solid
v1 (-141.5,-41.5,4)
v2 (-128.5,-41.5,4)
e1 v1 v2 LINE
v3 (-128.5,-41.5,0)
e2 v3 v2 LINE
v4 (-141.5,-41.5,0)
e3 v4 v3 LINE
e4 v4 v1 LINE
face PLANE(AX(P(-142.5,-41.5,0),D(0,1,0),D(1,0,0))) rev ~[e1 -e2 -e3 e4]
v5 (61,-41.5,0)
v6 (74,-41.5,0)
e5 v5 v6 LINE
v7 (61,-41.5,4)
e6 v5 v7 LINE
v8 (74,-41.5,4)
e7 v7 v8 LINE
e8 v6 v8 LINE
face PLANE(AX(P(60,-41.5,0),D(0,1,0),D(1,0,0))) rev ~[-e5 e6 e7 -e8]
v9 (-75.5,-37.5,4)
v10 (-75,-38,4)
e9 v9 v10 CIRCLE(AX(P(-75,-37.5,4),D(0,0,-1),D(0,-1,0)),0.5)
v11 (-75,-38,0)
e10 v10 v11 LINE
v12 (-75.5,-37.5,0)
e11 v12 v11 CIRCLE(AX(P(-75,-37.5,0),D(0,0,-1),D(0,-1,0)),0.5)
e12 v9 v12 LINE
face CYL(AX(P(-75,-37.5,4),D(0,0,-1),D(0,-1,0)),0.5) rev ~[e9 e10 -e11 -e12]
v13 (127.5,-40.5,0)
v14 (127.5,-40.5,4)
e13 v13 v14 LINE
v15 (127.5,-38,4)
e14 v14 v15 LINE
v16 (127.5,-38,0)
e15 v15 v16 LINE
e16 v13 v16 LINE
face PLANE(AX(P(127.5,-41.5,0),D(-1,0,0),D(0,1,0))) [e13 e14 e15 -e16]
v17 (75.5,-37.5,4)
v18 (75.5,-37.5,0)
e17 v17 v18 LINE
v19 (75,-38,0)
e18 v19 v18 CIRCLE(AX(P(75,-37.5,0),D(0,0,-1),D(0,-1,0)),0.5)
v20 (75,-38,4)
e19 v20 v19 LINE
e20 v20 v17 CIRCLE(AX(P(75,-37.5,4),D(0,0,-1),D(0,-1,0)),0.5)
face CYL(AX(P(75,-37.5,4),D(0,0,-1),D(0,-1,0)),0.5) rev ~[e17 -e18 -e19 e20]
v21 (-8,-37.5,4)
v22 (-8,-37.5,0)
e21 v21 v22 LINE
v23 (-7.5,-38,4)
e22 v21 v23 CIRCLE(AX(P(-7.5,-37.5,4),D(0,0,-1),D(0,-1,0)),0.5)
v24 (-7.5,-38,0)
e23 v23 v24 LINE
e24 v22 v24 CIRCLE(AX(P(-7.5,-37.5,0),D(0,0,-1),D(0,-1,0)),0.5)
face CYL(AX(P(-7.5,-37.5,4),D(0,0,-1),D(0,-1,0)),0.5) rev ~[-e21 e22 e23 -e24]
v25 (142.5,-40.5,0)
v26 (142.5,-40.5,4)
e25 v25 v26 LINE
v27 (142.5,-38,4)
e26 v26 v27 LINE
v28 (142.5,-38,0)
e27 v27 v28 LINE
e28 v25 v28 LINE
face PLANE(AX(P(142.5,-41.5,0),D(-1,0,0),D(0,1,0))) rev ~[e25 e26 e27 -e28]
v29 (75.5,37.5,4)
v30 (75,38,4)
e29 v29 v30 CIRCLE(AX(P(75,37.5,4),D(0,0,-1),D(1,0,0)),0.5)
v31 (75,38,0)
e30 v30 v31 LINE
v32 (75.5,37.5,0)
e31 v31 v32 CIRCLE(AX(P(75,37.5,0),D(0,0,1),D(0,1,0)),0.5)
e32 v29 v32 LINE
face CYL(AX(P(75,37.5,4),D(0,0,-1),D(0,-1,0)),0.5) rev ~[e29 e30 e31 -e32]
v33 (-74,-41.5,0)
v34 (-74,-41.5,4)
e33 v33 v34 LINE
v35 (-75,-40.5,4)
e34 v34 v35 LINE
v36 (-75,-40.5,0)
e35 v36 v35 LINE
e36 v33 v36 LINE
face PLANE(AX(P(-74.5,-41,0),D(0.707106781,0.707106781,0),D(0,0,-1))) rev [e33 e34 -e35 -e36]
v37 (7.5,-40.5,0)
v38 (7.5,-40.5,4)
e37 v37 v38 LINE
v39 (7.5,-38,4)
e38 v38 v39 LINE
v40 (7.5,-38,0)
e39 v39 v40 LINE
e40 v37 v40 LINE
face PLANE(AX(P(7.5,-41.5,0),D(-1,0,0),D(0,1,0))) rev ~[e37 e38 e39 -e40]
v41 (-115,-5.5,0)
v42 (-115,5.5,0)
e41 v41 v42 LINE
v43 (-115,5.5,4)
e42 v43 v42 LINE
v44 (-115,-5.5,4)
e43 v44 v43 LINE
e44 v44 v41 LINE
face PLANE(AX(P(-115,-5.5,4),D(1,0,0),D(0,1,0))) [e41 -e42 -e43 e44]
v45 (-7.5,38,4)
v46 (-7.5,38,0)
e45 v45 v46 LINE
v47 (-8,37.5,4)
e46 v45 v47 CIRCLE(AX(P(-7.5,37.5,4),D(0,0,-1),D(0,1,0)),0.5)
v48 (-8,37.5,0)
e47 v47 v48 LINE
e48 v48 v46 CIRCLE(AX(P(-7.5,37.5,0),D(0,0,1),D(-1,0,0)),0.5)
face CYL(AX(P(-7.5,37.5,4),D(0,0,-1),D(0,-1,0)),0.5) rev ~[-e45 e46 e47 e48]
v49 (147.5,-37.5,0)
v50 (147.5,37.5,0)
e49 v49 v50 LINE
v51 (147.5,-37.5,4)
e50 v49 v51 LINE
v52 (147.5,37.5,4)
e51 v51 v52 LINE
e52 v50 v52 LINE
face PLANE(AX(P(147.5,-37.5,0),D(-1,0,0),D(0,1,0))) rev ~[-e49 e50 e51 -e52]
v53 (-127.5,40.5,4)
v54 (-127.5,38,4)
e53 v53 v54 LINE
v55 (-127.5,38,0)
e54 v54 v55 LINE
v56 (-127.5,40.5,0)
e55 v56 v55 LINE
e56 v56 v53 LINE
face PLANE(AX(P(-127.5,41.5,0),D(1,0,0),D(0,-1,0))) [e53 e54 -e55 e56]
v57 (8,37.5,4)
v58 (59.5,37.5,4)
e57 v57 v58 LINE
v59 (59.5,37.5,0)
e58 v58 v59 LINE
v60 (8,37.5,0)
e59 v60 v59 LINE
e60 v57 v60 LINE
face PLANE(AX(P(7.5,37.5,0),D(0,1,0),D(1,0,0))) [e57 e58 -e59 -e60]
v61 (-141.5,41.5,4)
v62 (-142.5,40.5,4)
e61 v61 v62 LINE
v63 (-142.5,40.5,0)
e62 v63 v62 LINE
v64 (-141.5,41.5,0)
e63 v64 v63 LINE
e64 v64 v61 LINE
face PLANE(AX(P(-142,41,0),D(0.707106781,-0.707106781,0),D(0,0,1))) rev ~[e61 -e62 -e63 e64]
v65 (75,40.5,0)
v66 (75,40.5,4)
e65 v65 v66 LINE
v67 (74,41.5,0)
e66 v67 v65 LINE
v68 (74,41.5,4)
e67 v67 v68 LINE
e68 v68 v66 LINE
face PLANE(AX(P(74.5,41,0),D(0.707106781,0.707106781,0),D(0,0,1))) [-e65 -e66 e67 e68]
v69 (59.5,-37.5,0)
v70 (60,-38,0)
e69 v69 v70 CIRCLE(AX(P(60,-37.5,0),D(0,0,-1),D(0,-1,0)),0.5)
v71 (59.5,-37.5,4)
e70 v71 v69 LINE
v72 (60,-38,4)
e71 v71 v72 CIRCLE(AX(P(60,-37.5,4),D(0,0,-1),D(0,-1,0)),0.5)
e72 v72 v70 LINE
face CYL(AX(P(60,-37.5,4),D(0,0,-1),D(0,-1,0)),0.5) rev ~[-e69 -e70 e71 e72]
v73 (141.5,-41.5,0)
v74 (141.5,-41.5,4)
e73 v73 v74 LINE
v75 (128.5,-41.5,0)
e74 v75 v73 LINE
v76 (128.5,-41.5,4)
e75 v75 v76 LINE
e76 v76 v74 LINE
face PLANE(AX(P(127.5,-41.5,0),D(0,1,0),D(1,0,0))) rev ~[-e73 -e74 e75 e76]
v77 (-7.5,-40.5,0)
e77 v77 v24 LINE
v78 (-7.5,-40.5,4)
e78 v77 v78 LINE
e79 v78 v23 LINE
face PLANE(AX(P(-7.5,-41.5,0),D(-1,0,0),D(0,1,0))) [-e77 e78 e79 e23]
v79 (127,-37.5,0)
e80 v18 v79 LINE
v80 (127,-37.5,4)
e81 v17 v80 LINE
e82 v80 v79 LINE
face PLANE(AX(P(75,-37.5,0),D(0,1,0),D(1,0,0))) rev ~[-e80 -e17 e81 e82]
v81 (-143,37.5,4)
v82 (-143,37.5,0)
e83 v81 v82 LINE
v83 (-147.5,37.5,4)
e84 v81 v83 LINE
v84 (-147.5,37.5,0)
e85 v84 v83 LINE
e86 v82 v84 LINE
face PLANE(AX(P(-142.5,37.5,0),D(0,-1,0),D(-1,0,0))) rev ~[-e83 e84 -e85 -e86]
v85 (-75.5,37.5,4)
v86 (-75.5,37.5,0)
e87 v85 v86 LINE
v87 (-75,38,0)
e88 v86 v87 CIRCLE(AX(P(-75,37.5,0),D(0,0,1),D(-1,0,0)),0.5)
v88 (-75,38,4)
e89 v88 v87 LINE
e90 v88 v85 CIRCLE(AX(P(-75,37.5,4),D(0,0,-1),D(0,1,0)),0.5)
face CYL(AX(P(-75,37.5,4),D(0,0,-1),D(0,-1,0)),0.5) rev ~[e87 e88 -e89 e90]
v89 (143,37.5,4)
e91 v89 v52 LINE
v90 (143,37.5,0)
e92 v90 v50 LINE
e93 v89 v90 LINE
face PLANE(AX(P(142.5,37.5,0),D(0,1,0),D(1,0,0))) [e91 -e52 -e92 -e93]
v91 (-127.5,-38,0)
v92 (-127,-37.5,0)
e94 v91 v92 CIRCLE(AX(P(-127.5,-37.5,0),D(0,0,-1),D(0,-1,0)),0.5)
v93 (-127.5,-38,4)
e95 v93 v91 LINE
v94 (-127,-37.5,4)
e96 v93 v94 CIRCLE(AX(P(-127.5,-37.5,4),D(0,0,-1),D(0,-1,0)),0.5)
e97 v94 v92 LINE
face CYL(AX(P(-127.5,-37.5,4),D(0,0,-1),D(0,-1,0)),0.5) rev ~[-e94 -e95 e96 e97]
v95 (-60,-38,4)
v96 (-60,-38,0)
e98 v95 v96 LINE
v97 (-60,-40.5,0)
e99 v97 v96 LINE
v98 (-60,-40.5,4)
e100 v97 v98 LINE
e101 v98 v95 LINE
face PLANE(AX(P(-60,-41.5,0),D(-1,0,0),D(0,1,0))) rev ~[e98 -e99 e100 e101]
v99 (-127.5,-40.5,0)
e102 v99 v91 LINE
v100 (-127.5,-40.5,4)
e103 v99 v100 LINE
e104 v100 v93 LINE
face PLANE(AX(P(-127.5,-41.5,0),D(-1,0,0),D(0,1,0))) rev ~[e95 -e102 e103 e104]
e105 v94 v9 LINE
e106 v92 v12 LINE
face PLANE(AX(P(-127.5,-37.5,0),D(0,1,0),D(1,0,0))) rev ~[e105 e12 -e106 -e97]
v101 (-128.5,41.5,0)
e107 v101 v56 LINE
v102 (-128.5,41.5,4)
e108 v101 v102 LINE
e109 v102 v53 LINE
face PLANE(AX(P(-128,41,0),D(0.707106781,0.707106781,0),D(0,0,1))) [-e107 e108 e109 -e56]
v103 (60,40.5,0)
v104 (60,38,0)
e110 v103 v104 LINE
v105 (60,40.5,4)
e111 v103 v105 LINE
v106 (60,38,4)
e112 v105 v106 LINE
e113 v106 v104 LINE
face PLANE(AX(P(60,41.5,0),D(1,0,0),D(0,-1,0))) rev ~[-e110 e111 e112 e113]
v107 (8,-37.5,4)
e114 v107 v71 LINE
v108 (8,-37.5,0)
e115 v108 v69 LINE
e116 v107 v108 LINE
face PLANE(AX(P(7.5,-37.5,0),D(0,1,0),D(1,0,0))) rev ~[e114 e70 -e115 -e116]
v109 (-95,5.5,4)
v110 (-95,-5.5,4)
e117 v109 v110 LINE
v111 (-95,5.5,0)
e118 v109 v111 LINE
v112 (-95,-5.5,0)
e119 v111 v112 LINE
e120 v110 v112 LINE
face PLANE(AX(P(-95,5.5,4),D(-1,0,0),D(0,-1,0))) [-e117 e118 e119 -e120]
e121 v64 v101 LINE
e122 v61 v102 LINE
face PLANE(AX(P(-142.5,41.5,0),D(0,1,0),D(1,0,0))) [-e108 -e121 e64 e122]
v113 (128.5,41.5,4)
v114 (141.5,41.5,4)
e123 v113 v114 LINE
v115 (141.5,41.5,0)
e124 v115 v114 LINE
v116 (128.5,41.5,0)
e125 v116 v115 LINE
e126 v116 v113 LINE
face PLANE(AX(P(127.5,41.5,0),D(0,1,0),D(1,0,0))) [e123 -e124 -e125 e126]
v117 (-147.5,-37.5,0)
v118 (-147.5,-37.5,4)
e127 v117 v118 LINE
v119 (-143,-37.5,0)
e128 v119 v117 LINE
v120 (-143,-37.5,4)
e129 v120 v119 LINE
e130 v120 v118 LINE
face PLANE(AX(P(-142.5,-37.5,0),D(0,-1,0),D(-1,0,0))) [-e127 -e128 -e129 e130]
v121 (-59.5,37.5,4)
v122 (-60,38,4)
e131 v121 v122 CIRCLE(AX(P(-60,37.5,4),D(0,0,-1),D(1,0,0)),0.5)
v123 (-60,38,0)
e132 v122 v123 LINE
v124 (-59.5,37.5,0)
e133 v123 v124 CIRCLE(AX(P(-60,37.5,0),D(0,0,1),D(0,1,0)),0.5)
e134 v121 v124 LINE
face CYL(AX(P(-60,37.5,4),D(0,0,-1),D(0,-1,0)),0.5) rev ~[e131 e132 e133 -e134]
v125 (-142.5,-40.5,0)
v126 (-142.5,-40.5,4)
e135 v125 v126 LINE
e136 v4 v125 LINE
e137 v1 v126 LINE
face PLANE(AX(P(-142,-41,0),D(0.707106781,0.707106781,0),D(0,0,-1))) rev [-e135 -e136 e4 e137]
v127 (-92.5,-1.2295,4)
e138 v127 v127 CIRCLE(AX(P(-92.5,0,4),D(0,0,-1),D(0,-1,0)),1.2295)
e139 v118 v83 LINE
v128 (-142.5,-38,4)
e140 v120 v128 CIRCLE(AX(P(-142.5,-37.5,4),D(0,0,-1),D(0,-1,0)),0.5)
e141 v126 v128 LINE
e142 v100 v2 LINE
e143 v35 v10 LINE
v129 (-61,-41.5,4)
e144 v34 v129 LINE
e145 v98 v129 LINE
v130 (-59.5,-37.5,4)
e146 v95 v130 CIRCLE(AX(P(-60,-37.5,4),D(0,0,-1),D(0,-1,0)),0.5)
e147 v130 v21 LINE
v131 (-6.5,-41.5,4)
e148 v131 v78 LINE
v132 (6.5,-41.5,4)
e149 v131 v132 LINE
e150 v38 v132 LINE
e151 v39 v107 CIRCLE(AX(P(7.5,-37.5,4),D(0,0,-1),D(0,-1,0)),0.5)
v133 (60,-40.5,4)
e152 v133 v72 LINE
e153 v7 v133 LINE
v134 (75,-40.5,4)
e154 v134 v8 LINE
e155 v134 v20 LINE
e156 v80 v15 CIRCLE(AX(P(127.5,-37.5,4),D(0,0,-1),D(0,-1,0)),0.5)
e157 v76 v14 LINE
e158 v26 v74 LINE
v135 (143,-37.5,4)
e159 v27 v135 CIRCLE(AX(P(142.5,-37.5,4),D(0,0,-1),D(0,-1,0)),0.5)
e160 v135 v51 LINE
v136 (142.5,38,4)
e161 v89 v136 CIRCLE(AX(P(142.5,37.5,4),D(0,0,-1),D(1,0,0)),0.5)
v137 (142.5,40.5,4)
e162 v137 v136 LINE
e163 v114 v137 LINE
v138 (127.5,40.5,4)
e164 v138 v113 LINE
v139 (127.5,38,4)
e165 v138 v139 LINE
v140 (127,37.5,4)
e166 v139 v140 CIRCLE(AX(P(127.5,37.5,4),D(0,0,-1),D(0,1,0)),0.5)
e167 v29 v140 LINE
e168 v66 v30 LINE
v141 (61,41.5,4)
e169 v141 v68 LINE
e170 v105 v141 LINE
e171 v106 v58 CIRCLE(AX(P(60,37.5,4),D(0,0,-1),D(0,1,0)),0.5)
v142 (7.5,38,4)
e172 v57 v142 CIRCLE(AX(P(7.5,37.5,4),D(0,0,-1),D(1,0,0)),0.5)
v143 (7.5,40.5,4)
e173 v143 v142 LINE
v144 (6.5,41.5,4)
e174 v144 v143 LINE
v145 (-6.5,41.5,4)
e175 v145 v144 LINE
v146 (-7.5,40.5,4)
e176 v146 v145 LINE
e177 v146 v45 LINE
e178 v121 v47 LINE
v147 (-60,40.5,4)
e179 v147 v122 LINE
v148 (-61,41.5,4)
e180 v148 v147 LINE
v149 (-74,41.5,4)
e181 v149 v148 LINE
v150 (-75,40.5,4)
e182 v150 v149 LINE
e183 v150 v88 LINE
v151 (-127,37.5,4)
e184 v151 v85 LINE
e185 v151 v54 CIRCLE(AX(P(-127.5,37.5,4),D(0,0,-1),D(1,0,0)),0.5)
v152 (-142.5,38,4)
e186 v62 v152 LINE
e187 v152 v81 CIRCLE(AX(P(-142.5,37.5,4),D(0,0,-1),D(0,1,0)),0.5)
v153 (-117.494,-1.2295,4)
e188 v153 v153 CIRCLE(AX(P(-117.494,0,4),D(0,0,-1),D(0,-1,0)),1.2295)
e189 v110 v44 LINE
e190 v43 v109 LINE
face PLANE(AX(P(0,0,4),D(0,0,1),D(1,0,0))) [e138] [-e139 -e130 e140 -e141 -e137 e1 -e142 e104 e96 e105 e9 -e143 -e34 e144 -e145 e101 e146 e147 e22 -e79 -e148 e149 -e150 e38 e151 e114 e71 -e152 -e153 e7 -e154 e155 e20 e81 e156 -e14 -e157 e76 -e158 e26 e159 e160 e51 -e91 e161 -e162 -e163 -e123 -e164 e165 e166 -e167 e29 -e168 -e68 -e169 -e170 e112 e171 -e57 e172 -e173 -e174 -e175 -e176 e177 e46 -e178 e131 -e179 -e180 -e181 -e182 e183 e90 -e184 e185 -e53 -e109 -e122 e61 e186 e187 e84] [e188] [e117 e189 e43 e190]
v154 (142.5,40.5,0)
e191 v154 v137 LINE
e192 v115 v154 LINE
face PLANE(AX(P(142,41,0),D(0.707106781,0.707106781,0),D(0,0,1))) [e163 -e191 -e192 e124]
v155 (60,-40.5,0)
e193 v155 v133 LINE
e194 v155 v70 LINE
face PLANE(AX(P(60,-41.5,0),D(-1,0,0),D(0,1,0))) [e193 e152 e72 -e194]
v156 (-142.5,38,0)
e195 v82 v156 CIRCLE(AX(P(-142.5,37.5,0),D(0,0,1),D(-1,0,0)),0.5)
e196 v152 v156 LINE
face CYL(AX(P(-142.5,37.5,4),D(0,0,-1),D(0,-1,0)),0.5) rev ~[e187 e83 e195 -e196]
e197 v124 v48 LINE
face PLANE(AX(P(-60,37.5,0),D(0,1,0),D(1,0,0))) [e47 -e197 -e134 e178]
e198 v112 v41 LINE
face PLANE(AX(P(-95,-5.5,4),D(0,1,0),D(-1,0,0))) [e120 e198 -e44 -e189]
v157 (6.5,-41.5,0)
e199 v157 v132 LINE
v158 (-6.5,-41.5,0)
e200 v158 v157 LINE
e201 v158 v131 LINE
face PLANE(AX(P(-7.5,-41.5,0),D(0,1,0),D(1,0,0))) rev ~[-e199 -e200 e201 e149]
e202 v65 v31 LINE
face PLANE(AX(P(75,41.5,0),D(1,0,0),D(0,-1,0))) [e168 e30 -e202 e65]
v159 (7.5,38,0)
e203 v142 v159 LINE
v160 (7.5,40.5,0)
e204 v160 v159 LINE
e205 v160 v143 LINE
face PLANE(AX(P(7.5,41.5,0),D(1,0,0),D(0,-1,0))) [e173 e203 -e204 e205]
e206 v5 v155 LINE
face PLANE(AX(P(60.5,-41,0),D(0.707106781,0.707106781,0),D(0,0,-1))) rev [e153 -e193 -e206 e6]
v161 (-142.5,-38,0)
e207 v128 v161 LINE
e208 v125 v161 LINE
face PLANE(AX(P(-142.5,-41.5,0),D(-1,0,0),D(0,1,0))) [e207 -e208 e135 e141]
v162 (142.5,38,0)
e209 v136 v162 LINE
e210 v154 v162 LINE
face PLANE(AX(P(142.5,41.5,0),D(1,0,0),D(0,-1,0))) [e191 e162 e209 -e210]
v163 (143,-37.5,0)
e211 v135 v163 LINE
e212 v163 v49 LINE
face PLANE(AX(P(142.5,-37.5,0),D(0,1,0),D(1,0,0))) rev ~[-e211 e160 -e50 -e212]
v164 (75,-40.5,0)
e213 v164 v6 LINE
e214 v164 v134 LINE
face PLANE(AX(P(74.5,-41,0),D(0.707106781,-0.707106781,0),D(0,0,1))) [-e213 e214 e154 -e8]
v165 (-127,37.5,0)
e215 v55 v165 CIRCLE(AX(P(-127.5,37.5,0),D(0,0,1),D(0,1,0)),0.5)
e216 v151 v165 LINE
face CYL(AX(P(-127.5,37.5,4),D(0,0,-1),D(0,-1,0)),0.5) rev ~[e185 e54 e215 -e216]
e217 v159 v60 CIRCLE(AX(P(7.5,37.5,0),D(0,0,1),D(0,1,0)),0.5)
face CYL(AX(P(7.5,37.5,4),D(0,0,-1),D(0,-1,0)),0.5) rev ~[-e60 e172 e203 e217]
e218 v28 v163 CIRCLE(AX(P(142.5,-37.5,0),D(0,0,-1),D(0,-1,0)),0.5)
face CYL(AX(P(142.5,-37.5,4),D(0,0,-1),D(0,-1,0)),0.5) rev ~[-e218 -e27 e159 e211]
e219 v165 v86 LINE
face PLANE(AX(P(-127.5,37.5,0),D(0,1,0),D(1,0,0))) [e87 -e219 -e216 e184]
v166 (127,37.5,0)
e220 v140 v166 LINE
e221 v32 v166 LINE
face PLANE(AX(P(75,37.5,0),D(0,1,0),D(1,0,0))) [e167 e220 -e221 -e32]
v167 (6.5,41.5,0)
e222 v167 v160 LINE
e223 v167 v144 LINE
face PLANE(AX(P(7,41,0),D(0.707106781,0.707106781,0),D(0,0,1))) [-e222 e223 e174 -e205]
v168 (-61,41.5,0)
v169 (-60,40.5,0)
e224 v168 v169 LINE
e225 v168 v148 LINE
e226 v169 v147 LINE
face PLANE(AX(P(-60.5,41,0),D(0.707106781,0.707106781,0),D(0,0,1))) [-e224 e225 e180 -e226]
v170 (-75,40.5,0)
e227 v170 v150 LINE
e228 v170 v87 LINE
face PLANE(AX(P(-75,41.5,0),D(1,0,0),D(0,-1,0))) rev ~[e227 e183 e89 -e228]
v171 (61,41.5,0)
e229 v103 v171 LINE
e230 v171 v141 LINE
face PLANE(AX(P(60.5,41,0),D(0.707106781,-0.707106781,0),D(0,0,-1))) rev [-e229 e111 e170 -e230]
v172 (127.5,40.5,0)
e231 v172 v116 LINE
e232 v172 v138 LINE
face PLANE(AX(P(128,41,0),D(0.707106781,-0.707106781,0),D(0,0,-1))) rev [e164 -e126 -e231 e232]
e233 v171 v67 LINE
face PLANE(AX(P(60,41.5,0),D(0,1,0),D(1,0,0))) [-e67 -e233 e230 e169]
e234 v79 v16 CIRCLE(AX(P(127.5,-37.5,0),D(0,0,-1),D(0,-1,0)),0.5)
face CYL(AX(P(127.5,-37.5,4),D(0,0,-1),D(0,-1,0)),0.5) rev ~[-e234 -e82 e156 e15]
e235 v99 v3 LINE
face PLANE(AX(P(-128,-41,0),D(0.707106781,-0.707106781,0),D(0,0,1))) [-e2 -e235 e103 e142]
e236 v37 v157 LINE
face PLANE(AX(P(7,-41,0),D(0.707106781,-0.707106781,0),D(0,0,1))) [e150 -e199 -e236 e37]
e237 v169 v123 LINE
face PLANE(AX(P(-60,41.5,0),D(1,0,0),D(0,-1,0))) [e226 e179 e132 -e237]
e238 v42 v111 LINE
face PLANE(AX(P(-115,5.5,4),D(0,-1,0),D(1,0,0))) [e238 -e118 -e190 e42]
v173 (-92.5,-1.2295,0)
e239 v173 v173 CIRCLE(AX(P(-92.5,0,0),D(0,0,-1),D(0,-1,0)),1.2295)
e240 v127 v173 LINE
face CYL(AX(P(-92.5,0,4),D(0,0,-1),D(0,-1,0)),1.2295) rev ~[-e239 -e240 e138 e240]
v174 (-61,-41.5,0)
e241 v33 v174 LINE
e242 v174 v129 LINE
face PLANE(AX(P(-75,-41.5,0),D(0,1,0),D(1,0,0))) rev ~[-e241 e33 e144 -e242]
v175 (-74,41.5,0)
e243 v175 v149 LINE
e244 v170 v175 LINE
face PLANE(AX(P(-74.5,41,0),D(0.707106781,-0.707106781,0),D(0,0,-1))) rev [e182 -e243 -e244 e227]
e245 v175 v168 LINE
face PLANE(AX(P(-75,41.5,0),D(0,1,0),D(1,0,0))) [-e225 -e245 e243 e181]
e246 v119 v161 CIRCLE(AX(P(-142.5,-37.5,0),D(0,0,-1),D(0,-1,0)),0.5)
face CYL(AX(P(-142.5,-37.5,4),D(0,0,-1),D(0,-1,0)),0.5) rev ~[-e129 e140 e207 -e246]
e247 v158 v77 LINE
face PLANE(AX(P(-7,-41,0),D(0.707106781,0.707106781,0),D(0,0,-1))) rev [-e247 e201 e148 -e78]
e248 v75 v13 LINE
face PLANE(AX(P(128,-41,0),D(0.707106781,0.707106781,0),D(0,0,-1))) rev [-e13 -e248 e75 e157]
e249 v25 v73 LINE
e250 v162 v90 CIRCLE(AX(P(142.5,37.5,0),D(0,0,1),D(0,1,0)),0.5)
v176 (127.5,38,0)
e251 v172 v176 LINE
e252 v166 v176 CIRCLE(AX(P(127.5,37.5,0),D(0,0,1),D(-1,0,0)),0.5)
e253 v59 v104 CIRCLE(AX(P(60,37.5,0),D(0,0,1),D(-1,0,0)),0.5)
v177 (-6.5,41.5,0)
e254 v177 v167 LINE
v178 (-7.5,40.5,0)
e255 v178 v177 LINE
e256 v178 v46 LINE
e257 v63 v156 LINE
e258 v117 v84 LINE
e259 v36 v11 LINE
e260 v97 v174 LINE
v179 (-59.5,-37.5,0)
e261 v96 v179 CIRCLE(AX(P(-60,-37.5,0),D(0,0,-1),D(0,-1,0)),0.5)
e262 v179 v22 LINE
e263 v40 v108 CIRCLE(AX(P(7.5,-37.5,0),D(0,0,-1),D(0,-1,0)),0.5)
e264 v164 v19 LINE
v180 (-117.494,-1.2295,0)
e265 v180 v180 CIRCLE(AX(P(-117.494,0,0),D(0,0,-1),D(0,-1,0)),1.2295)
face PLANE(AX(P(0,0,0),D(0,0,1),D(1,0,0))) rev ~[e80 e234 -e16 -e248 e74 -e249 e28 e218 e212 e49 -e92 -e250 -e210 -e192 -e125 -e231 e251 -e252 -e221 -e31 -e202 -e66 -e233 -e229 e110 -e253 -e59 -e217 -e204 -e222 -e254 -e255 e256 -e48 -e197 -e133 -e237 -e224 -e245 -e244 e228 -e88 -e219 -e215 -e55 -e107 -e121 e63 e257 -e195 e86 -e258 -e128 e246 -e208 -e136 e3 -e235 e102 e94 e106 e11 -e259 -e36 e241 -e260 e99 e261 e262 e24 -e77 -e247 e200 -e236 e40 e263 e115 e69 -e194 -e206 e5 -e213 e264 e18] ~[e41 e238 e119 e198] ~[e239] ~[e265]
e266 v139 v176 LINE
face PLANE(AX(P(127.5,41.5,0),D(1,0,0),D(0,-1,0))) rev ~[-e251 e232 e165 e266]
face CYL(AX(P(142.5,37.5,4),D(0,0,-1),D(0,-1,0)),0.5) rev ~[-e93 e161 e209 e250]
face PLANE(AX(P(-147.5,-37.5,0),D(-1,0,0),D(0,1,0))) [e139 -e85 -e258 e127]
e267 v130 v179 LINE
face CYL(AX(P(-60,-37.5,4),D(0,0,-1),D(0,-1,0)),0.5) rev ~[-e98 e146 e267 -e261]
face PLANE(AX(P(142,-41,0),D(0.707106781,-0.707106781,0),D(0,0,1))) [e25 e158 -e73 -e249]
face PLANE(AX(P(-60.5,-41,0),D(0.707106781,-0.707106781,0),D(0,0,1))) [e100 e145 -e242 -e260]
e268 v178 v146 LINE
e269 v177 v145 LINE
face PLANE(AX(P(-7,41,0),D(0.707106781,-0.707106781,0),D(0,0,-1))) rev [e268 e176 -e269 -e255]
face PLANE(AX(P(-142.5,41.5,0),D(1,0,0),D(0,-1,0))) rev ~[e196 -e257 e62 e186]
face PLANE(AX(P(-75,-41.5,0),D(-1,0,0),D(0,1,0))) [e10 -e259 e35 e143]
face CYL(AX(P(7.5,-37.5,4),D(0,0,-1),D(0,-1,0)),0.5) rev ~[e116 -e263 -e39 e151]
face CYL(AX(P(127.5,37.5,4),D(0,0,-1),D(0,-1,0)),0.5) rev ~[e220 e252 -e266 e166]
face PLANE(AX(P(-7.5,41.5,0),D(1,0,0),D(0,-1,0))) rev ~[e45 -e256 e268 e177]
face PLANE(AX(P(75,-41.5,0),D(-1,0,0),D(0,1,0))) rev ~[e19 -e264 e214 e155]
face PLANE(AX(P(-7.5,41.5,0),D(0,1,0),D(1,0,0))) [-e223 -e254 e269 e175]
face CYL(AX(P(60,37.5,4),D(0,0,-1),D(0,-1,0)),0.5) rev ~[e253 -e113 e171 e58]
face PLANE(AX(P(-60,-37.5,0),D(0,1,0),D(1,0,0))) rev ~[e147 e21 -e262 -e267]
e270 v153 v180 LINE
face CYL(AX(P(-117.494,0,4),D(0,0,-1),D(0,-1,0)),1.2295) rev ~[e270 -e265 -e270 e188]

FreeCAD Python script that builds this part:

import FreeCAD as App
import Part
import Sketcher

V = App.Vector
Q = App.Units.Quantity


def edges_at(feature, points):
    """Names of the edges that pass closest to the given points."""
    edges = feature.Shape.Edges
    near = lambda p: min(range(len(edges)), key=lambda i: edges[i].distToShape(Part.Vertex(*p))[0])
    return sorted({f"Edge{near(p) + 1}" for p in points})

doc = App.newDocument("Part")
params = doc.addObject("Spreadsheet::Sheet", "Params")
for row, (alias, value) in enumerate([
    ("sketch1_width", "15 mm"),
    ("sketch1_width2", "5 mm"),
    ("sketch1_height", "4 mm"),
    ("sketch1_height2", "75 mm"),
    ("pad1_length", "4 mm"),
    ("sketch2_diameter", "1 mm"),
    ("hole_diameter", "1 mm"),
    ("chamfer_size", "1 mm"),
    ("sketch3_width", "20 mm"),
    ("sketch3_height", "11 mm"),
    ("pocket1_length", "10 mm"),
    ("hole2_diameter", "2.459 mm"),
], start=1):
    params.set(f"A{row}", alias)
    params.set(f"B{row}", "=" + value)
    params.setAlias(f"B{row}", alias)

body = doc.addObject("PartDesign::Body", "Body")

# Sketch on XY plane
sketch1 = body.newObject("Sketcher::SketchObject", "Sketch")
sketch1.AttachmentSupport = (doc.getObject("XY_Plane"), [""])
sketch1.MapMode = "FlatFace"
sketch1.addGeometry(Part.LineSegment(V(-127.5, 41.5, 0), V(-142.5, 41.5, 0)), False)
sketch1.addGeometry(Part.LineSegment(V(-142.5, 41.5, 0), V(-142.5, 37.5, 0)), False)
sketch1.addGeometry(Part.LineSegment(V(-142.5, 37.5, 0), V(-147.5, 37.5, 0)), False)
sketch1.addGeometry(Part.LineSegment(V(-147.5, 37.5, 0), V(-147.5, -37.5, 0)), False)
sketch1.addGeometry(Part.LineSegment(V(-147.5, -37.5, 0), V(-142.5, -37.5, 0)), False)
sketch1.addGeometry(Part.LineSegment(V(-142.5, -37.5, 0), V(-142.5, -41.5, 0)), False)
sketch1.addGeometry(Part.LineSegment(V(-142.5, -41.5, 0), V(-127.5, -41.5, 0)), False)
sketch1.addGeometry(Part.LineSegment(V(-127.5, -41.5, 0), V(-127.5, -37.5, 0)), False)
sketch1.addGeometry(Part.LineSegment(V(-127.5, -37.5, 0), V(-75, -37.5, 0)), False)
sketch1.addGeometry(Part.LineSegment(V(-75, -37.5, 0), V(-75, -41.5, 0)), False)
sketch1.addGeometry(Part.LineSegment(V(-75, -41.5, 0), V(-60, -41.5, 0)), False)
sketch1.addGeometry(Part.LineSegment(V(-60, -41.5, 0), V(-60, -37.5, 0)), False)
sketch1.addGeometry(Part.LineSegment(V(-60, -37.5, 0), V(-7.5, -37.5, 0)), False)
sketch1.addGeometry(Part.LineSegment(V(-7.5, -37.5, 0), V(-7.5, -41.5, 0)), False)
sketch1.addGeometry(Part.LineSegment(V(-7.5, -41.5, 0), V(7.5, -41.5, 0)), False)
sketch1.addGeometry(Part.LineSegment(V(7.5, -41.5, 0), V(7.5, -37.5, 0)), False)
sketch1.addGeometry(Part.LineSegment(V(7.5, -37.5, 0), V(60, -37.5, 0)), False)
sketch1.addGeometry(Part.LineSegment(V(60, -37.5, 0), V(60, -41.5, 0)), False)
sketch1.addGeometry(Part.LineSegment(V(60, -41.5, 0), V(75, -41.5, 0)), False)
sketch1.addGeometry(Part.LineSegment(V(75, -41.5, 0), V(75, -37.5, 0)), False)
sketch1.addGeometry(Part.LineSegment(V(75, -37.5, 0), V(127.5, -37.5, 0)), False)
sketch1.addGeometry(Part.LineSegment(V(127.5, -37.5, 0), V(127.5, -41.5, 0)), False)
sketch1.addGeometry(Part.LineSegment(V(127.5, -41.5, 0), V(142.5, -41.5, 0)), False)
sketch1.addGeometry(Part.LineSegment(V(142.5, -41.5, 0), V(142.5, -37.5, 0)), False)
sketch1.addGeometry(Part.LineSegment(V(142.5, -37.5, 0), V(147.5, -37.5, 0)), False)
sketch1.addGeometry(Part.LineSegment(V(147.5, -37.5, 0), V(147.5, 37.5, 0)), False)
sketch1.addGeometry(Part.LineSegment(V(147.5, 37.5, 0), V(142.5, 37.5, 0)), False)
sketch1.addGeometry(Part.LineSegment(V(142.5, 37.5, 0), V(142.5, 41.5, 0)), False)
sketch1.addGeometry(Part.LineSegment(V(142.5, 41.5, 0), V(127.5, 41.5, 0)), False)
sketch1.addGeometry(Part.LineSegment(V(127.5, 41.5, 0), V(127.5, 37.5, 0)), False)
sketch1.addGeometry(Part.LineSegment(V(127.5, 37.5, 0), V(75, 37.5, 0)), False)
sketch1.addGeometry(Part.LineSegment(V(75, 37.5, 0), V(75, 41.5, 0)), False)
sketch1.addGeometry(Part.LineSegment(V(75, 41.5, 0), V(60, 41.5, 0)), False)
sketch1.addGeometry(Part.LineSegment(V(60, 41.5, 0), V(60, 37.5, 0)), False)
sketch1.addGeometry(Part.LineSegment(V(60, 37.5, 0), V(7.5, 37.5, 0)), False)
sketch1.addGeometry(Part.LineSegment(V(7.5, 37.5, 0), V(7.5, 41.5, 0)), False)
sketch1.addGeometry(Part.LineSegment(V(7.5, 41.5, 0), V(-7.5, 41.5, 0)), False)
sketch1.addGeometry(Part.LineSegment(V(-7.5, 41.5, 0), V(-7.5, 37.5, 0)), False)
sketch1.addGeometry(Part.LineSegment(V(-7.5, 37.5, 0), V(-60, 37.5, 0)), False)
sketch1.addGeometry(Part.LineSegment(V(-60, 37.5, 0), V(-60, 41.5, 0)), False)
sketch1.addGeometry(Part.LineSegment(V(-60, 41.5, 0), V(-75, 41.5, 0)), False)
sketch1.addGeometry(Part.LineSegment(V(-75, 41.5, 0), V(-75, 37.5, 0)), False)
sketch1.addGeometry(Part.LineSegment(V(-75, 37.5, 0), V(-127.5, 37.5, 0)), False)
sketch1.addGeometry(Part.LineSegment(V(-127.5, 37.5, 0), V(-127.5, 41.5, 0)), False)
sketch1.addConstraint(Sketcher.Constraint("Coincident", 0, 2, 1, 1))
sketch1.addConstraint(Sketcher.Constraint("Coincident", 1, 2, 2, 1))
sketch1.addConstraint(Sketcher.Constraint("Coincident", 2, 2, 3, 1))
sketch1.addConstraint(Sketcher.Constraint("Coincident", 3, 2, 4, 1))
sketch1.addConstraint(Sketcher.Constraint("Coincident", 4, 2, 5, 1))
sketch1.addConstraint(Sketcher.Constraint("Coincident", 5, 2, 6, 1))
sketch1.addConstraint(Sketcher.Constraint("Coincident", 6, 2, 7, 1))
sketch1.addConstraint(Sketcher.Constraint("Coincident", 7, 2, 8, 1))
sketch1.addConstraint(Sketcher.Constraint("Coincident", 8, 2, 9, 1))
sketch1.addConstraint(Sketcher.Constraint("Coincident", 9, 2, 10, 1))
sketch1.addConstraint(Sketcher.Constraint("Coincident", 10, 2, 11, 1))
sketch1.addConstraint(Sketcher.Constraint("Coincident", 11, 2, 12, 1))
sketch1.addConstraint(Sketcher.Constraint("Coincident", 12, 2, 13, 1))
sketch1.addConstraint(Sketcher.Constraint("Coincident", 13, 2, 14, 1))
sketch1.addConstraint(Sketcher.Constraint("Coincident", 14, 2, 15, 1))
sketch1.addConstraint(Sketcher.Constraint("Coincident", 15, 2, 16, 1))
sketch1.addConstraint(Sketcher.Constraint("Coincident", 16, 2, 17, 1))
sketch1.addConstraint(Sketcher.Constraint("Coincident", 17, 2, 18, 1))
sketch1.addConstraint(Sketcher.Constraint("Coincident", 18, 2, 19, 1))
sketch1.addConstraint(Sketcher.Constraint("Coincident", 19, 2, 20, 1))
sketch1.addConstraint(Sketcher.Constraint("Coincident", 20, 2, 21, 1))
sketch1.addConstraint(Sketcher.Constraint("Coincident", 21, 2, 22, 1))
sketch1.addConstraint(Sketcher.Constraint("Coincident", 22, 2, 23, 1))
sketch1.addConstraint(Sketcher.Constraint("Coincident", 23, 2, 24, 1))
sketch1.addConstraint(Sketcher.Constraint("Coincident", 24, 2, 25, 1))
sketch1.addConstraint(Sketcher.Constraint("Coincident", 25, 2, 26, 1))
sketch1.addConstraint(Sketcher.Constraint("Coincident", 26, 2, 27, 1))
sketch1.addConstraint(Sketcher.Constraint("Coincident", 27, 2, 28, 1))
sketch1.addConstraint(Sketcher.Constraint("Coincident", 28, 2, 29, 1))
sketch1.addConstraint(Sketcher.Constraint("Coincident", 29, 2, 30, 1))
sketch1.addConstraint(Sketcher.Constraint("Coincident", 30, 2, 31, 1))
sketch1.addConstraint(Sketcher.Constraint("Coincident", 31, 2, 32, 1))
sketch1.addConstraint(Sketcher.Constraint("Coincident", 32, 2, 33, 1))
sketch1.addConstraint(Sketcher.Constraint("Coincident", 33, 2, 34, 1))
sketch1.addConstraint(Sketcher.Constraint("Coincident", 34, 2, 35, 1))
sketch1.addConstraint(Sketcher.Constraint("Coincident", 35, 2, 36, 1))
sketch1.addConstraint(Sketcher.Constraint("Coincident", 36, 2, 37, 1))
sketch1.addConstraint(Sketcher.Constraint("Coincident", 37, 2, 38, 1))
sketch1.addConstraint(Sketcher.Constraint("Coincident", 38, 2, 39, 1))
sketch1.addConstraint(Sketcher.Constraint("Coincident", 39, 2, 40, 1))
sketch1.addConstraint(Sketcher.Constraint("Coincident", 40, 2, 41, 1))
sketch1.addConstraint(Sketcher.Constraint("Coincident", 41, 2, 42, 1))
sketch1.addConstraint(Sketcher.Constraint("Coincident", 42, 2, 43, 1))
sketch1.addConstraint(Sketcher.Constraint("Coincident", 43, 2, 0, 1))
sketch1.addConstraint(Sketcher.Constraint("Horizontal", 0))
sketch1.addConstraint(Sketcher.Constraint("Vertical", 1))
sketch1.addConstraint(Sketcher.Constraint("Horizontal", 2))
sketch1.addConstraint(Sketcher.Constraint("Vertical", 3))
sketch1.addConstraint(Sketcher.Constraint("Horizontal", 4))
sketch1.addConstraint(Sketcher.Constraint("Vertical", 5))
sketch1.addConstraint(Sketcher.Constraint("Horizontal", 6))
sketch1.addConstraint(Sketcher.Constraint("Vertical", 7))
sketch1.addConstraint(Sketcher.Constraint("Horizontal", 8))
sketch1.addConstraint(Sketcher.Constraint("Vertical", 9))
sketch1.addConstraint(Sketcher.Constraint("Horizontal", 10))
sketch1.addConstraint(Sketcher.Constraint("Vertical", 11))
sketch1.addConstraint(Sketcher.Constraint("Horizontal", 12))
sketch1.addConstraint(Sketcher.Constraint("Vertical", 13))
sketch1.addConstraint(Sketcher.Constraint("Horizontal", 14))
sketch1.addConstraint(Sketcher.Constraint("Vertical", 15))
sketch1.addConstraint(Sketcher.Constraint("Horizontal", 16))
sketch1.addConstraint(Sketcher.Constraint("Vertical", 17))
sketch1.addConstraint(Sketcher.Constraint("Horizontal", 18))
sketch1.addConstraint(Sketcher.Constraint("Vertical", 19))
sketch1.addConstraint(Sketcher.Constraint("Horizontal", 20))
sketch1.addConstraint(Sketcher.Constraint("Vertical", 21))
sketch1.addConstraint(Sketcher.Constraint("Horizontal", 22))
sketch1.addConstraint(Sketcher.Constraint("Vertical", 23))
sketch1.addConstraint(Sketcher.Constraint("Horizontal", 24))
sketch1.addConstraint(Sketcher.Constraint("Vertical", 25))
sketch1.addConstraint(Sketcher.Constraint("Horizontal", 26))
sketch1.addConstraint(Sketcher.Constraint("Vertical", 27))
sketch1.addConstraint(Sketcher.Constraint("Horizontal", 28))
sketch1.addConstraint(Sketcher.Constraint("Vertical", 29))
sketch1.addConstraint(Sketcher.Constraint("Horizontal", 30))
sketch1.addConstraint(Sketcher.Constraint("Vertical", 31))
sketch1.addConstraint(Sketcher.Constraint("Horizontal", 32))
sketch1.addConstraint(Sketcher.Constraint("Vertical", 33))
sketch1.addConstraint(Sketcher.Constraint("Horizontal", 34))
sketch1.addConstraint(Sketcher.Constraint("Vertical", 35))
sketch1.addConstraint(Sketcher.Constraint("Horizontal", 36))
sketch1.addConstraint(Sketcher.Constraint("Vertical", 37))
sketch1.addConstraint(Sketcher.Constraint("Horizontal", 38))
sketch1.addConstraint(Sketcher.Constraint("Vertical", 39))
sketch1.addConstraint(Sketcher.Constraint("Horizontal", 40))
sketch1.addConstraint(Sketcher.Constraint("Vertical", 41))
sketch1.addConstraint(Sketcher.Constraint("Horizontal", 42))
sketch1.addConstraint(Sketcher.Constraint("Vertical", 43))
sketch1.addConstraint(Sketcher.Constraint("Symmetric", 0, 2, 22, 2, -1, 1))
sketch1.addConstraint(Sketcher.Constraint("Symmetric", 2, 2, 24, 2, -1, 1))
sketch1.addConstraint(Sketcher.Constraint("Symmetric", 4, 2, 26, 2, -1, 1))
sketch1.addConstraint(Sketcher.Constraint("Symmetric", 6, 2, 28, 2, -1, 1))
sketch1.addConstraint(Sketcher.Constraint("Symmetric", 8, 2, 30, 2, -1, 1))
sketch1.addConstraint(Sketcher.Constraint("Symmetric", 10, 2, 32, 2, -1, 1))
sketch1.addConstraint(Sketcher.Constraint("Symmetric", 12, 2, 34, 2, -1, 1))
sketch1.addConstraint(Sketcher.Constraint("Symmetric", 14, 2, 36, 2, -1, 1))
sketch1.addConstraint(Sketcher.Constraint("Symmetric", 16, 2, 38, 2, -1, 1))
sketch1.addConstraint(Sketcher.Constraint("Symmetric", 18, 2, 40, 2, -1, 1))
sketch1.addConstraint(Sketcher.Constraint("Symmetric", 20, 2, 42, 2, -1, 1))
sketch1.addConstraint(Sketcher.Constraint("Symmetric", 12, 2, 15, 2, -2))
sketch1.addConstraint(Sketcher.Constraint("Symmetric", 10, 2, 17, 2, -2))
sketch1.addConstraint(Sketcher.Constraint("Symmetric", 8, 2, 19, 2, -2))
sketch1.addConstraint(Sketcher.Constraint("Symmetric", 6, 2, 21, 2, -2))
sketch1.addConstraint(Sketcher.Constraint("Symmetric", 4, 2, 23, 2, -2))
sketch1.addConstraint(Sketcher.Constraint("Horizontal", 4, 2, 7, 2))
sketch1.addConstraint(Sketcher.Constraint("Horizontal", 6, 2, 9, 2))
sketch1.addConstraint(Sketcher.Constraint("Horizontal", 8, 2, 11, 2))
sketch1.addConstraint(Sketcher.Constraint("Horizontal", 10, 2, 13, 2))
sketch1.addConstraint(Sketcher.Constraint("Equal", 6, 10))
sketch1.addConstraint(Sketcher.Constraint("Equal", 8, 12))
sketch1.addConstraint(Sketcher.Constraint("Equal", 10, 14))
sketch1.addConstraint(Sketcher.Constraint("DistanceX", 0, 2, 0, 1, Q("15 mm")))
sketch1.addConstraint(Sketcher.Constraint("DistanceX", 2, 2, 2, 1, Q("5 mm")))
sketch1.addConstraint(Sketcher.Constraint("DistanceY", 1, 2, 1, 1, Q("4 mm")))
sketch1.addConstraint(Sketcher.Constraint("DistanceY", 3, 2, 3, 1, Q("75 mm")))
sketch1.addConstraint(Sketcher.Constraint("DistanceX", 8, 2, -1, 1, Q("75 mm")))
sketch1.setExpression("Constraints[111]", "Params.sketch1_width")
sketch1.setExpression("Constraints[112]", "Params.sketch1_width2")
sketch1.setExpression("Constraints[113]", "Params.sketch1_height")
sketch1.setExpression("Constraints[114]", "Params.sketch1_height2")
pad1 = body.newObject("PartDesign::Pad", "Pad")
pad1.Profile = sketch1
pad1.setExpression("Length", "Params.pad1_length")

# Sketch on XY plane
sketch2 = body.newObject("Sketcher::SketchObject", "Sketch001")
sketch2.AttachmentSupport = (doc.getObject("XY_Plane"), [""])
sketch2.MapMode = "FlatFace"
sketch2.AttachmentOffset = App.Placement(V(0, 0, 4), App.Rotation())
sketch2.addGeometry(Part.Circle(V(-142.5, 37.5, 0), V(0, 0, 1), 0.5), False)
sketch2.addGeometry(Part.Circle(V(-127.5, 37.5, 0), V(0, 0, 1), 0.5), False)
sketch2.addGeometry(Part.Circle(V(-75, 37.5, 0), V(0, 0, 1), 0.5), False)
sketch2.addGeometry(Part.Circle(V(-60, 37.5, 0), V(0, 0, 1), 0.5), False)
sketch2.addGeometry(Part.Circle(V(-7.5, 37.5, 0), V(0, 0, 1), 0.5), False)
sketch2.addGeometry(Part.Circle(V(7.5, 37.5, 0), V(0, 0, 1), 0.5), False)
sketch2.addGeometry(Part.Circle(V(60, 37.5, 0), V(0, 0, 1), 0.5), False)
sketch2.addGeometry(Part.Circle(V(75, 37.5, 0), V(0, 0, 1), 0.5), False)
sketch2.addGeometry(Part.Circle(V(142.5, 37.5, 0), V(0, 0, 1), 0.5), False)
sketch2.addGeometry(Part.Circle(V(127.5, 37.5, 0), V(0, 0, 1), 0.5), False)
sketch2.addGeometry(Part.Circle(V(127.5, -37.5, 0), V(0, 0, 1), 0.5), False)
sketch2.addGeometry(Part.Circle(V(142.5, -37.5, 0), V(0, 0, 1), 0.5), False)
sketch2.addGeometry(Part.Circle(V(75, -37.5, 0), V(0, 0, 1), 0.5), False)
sketch2.addGeometry(Part.Circle(V(60, -37.5, 0), V(0, 0, 1), 0.5), False)
sketch2.addGeometry(Part.Circle(V(7.5, -37.5, 0), V(0, 0, 1), 0.5), False)
sketch2.addGeometry(Part.Circle(V(-7.5, -37.5, 0), V(0, 0, 1), 0.5), False)
sketch2.addGeometry(Part.Circle(V(-60, -37.5, 0), V(0, 0, 1), 0.5), False)
sketch2.addGeometry(Part.Circle(V(-75, -37.5, 0), V(0, 0, 1), 0.5), False)
sketch2.addGeometry(Part.Circle(V(-127.5, -37.5, 0), V(0, 0, 1), 0.5), False)
sketch2.addGeometry(Part.Circle(V(-142.5, -37.5, 0), V(0, 0, 1), 0.5), False)
sketch2.addConstraint(Sketcher.Constraint("Equal", 0, 1))
sketch2.addConstraint(Sketcher.Constraint("Equal", 1, 2))
sketch2.addConstraint(Sketcher.Constraint("Equal", 2, 3))
sketch2.addConstraint(Sketcher.Constraint("Equal", 3, 4))
sketch2.addConstraint(Sketcher.Constraint("Equal", 4, 5))
sketch2.addConstraint(Sketcher.Constraint("Equal", 5, 6))
sketch2.addConstraint(Sketcher.Constraint("Equal", 6, 7))
sketch2.addConstraint(Sketcher.Constraint("Equal", 7, 8))
sketch2.addConstraint(Sketcher.Constraint("Equal", 8, 9))
sketch2.addConstraint(Sketcher.Constraint("Equal", 9, 10))
sketch2.addConstraint(Sketcher.Constraint("Equal", 10, 11))
sketch2.addConstraint(Sketcher.Constraint("Equal", 11, 12))
sketch2.addConstraint(Sketcher.Constraint("Equal", 12, 13))
sketch2.addConstraint(Sketcher.Constraint("Equal", 13, 14))
sketch2.addConstraint(Sketcher.Constraint("Equal", 14, 15))
sketch2.addConstraint(Sketcher.Constraint("Equal", 15, 16))
sketch2.addConstraint(Sketcher.Constraint("Equal", 16, 17))
sketch2.addConstraint(Sketcher.Constraint("Equal", 17, 18))
sketch2.addConstraint(Sketcher.Constraint("Equal", 18, 19))
sketch2.addConstraint(Sketcher.Constraint("Symmetric", 1, 3, 10, 3, -1, 1))
sketch2.addConstraint(Sketcher.Constraint("Symmetric", 0, 3, 11, 3, -1, 1))
sketch2.addConstraint(Sketcher.Constraint("Symmetric", 2, 3, 12, 3, -1, 1))
sketch2.addConstraint(Sketcher.Constraint("Symmetric", 3, 3, 13, 3, -1, 1))
sketch2.addConstraint(Sketcher.Constraint("Symmetric", 4, 3, 14, 3, -1, 1))
sketch2.addConstraint(Sketcher.Constraint("Symmetric", 5, 3, 15, 3, -1, 1))
sketch2.addConstraint(Sketcher.Constraint("Symmetric", 6, 3, 16, 3, -1, 1))
sketch2.addConstraint(Sketcher.Constraint("Symmetric", 7, 3, 17, 3, -1, 1))
sketch2.addConstraint(Sketcher.Constraint("Symmetric", 9, 3, 18, 3, -1, 1))
sketch2.addConstraint(Sketcher.Constraint("Symmetric", 8, 3, 19, 3, -1, 1))
sketch2.addConstraint(Sketcher.Constraint("Symmetric", 4, 3, 5, 3, -2))
sketch2.addConstraint(Sketcher.Constraint("Symmetric", 3, 3, 6, 3, -2))
sketch2.addConstraint(Sketcher.Constraint("Symmetric", 2, 3, 7, 3, -2))
sketch2.addConstraint(Sketcher.Constraint("Symmetric", 0, 3, 8, 3, -2))
sketch2.addConstraint(Sketcher.Constraint("Symmetric", 1, 3, 9, 3, -2))
sketch2.addConstraint(Sketcher.Constraint("Horizontal", 0, 3, 1, 3))
sketch2.addConstraint(Sketcher.Constraint("Horizontal", 1, 3, 2, 3))
sketch2.addConstraint(Sketcher.Constraint("Horizontal", 2, 3, 3, 3))
sketch2.addConstraint(Sketcher.Constraint("Horizontal", 3, 3, 4, 3))
sketch2.addConstraint(Sketcher.Constraint("Diameter", 0, Q("1 mm")))
sketch2.addConstraint(Sketcher.Constraint("DistanceX", 2, 3, -1, 1, Q("75 mm")))
sketch2.addConstraint(Sketcher.Constraint("DistanceX", 3, 3, -1, 1, Q("60 mm")))
sketch2.addConstraint(Sketcher.Constraint("DistanceX", 0, 3, 1, 3, Q("15 mm")))
sketch2.addConstraint(Sketcher.Constraint("DistanceX", 1, 3, 4, 3, Q("120 mm")))
sketch2.addConstraint(Sketcher.Constraint("DistanceX", 4, 3, 5, 3, Q("15 mm")))
sketch2.addConstraint(Sketcher.Constraint("DistanceY", 10, 3, 9, 3, Q("75 mm")))
sketch2.setExpression("Constraints[38]", "Params.sketch2_diameter")
doc.recompute()
hole = body.newObject("PartDesign::Hole", "Hole")
hole.Profile = sketch2
hole.ThreadType = "None"
hole.setExpression("Diameter", "Params.hole_diameter")
hole.DepthType = "ThroughAll"
doc.recompute()

chamfer = body.newObject("PartDesign::Chamfer", "Chamfer")
chamfer.Base = (hole, edges_at(hole, [
    (-142.5, 41.5, 2),
    (-127.5, 41.5, 2),
    (-75, 41.5, 2),
    (-60, 41.5, 2),
    (-7.5, 41.5, 2),
    (7.5, 41.5, 2),
    (60, 41.5, 2),
    (75, 41.5, 2),
    (127.5, 41.5, 2),
    (142.5, 41.5, 2),
    (142.5, -41.5, 2),
    (127.5, -41.5, 2),
    (60, -41.5, 2),
    (75, -41.5, 2),
    (-142.5, -41.5, 2),
    (-127.5, -41.5, 2),
    (-75, -41.5, 2),
    (-60, -41.5, 2),
    (-7.5, -41.5, 2),
    (7.5, -41.5, 2),
]))
chamfer.setExpression("Size", "Params.chamfer_size")

# Sketch on XY plane
sketch3 = body.newObject("Sketcher::SketchObject", "Sketch002")
sketch3.AttachmentSupport = (doc.getObject("XY_Plane"), [""])
sketch3.MapMode = "FlatFace"
sketch3.AttachmentOffset = App.Placement(V(0, 0, 4), App.Rotation())
sketch3.addGeometry(Part.LineSegment(V(-95, 6, 0), V(-115, 6, 0)), False)
sketch3.addGeometry(Part.LineSegment(V(-115, 6, 0), V(-115, -6, 0)), False)
sketch3.addGeometry(Part.LineSegment(V(-115, -6, 0), V(-95, -6, 0)), False)
sketch3.addGeometry(Part.LineSegment(V(-95, -6, 0), V(-95, 6, 0)), False)
sketch3.addConstraint(Sketcher.Constraint("Coincident", 0, 2, 1, 1))
sketch3.addConstraint(Sketcher.Constraint("Coincident", 1, 2, 2, 1))
sketch3.addConstraint(Sketcher.Constraint("Coincident", 2, 2, 3, 1))
sketch3.addConstraint(Sketcher.Constraint("Coincident", 3, 2, 0, 1))
sketch3.addConstraint(Sketcher.Constraint("Horizontal", 0))
sketch3.addConstraint(Sketcher.Constraint("Vertical", 1))
sketch3.addConstraint(Sketcher.Constraint("Horizontal", 2))
sketch3.addConstraint(Sketcher.Constraint("Vertical", 3))
sketch3.addConstraint(Sketcher.Constraint("DistanceX", 0, 2, 0, 1, Q("20 mm")))
sketch3.addConstraint(Sketcher.Constraint("DistanceY", 1, 2, 1, 1, Q("11 mm")))
sketch3.addConstraint(Sketcher.Constraint("DistanceX", 2, 2, -1, 1, Q("95 mm")))
sketch3.addConstraint(Sketcher.Constraint("DistanceY", -1, 1, 0, 2, Q("5.5 mm")))
sketch3.setExpression("Constraints[8]", "Params.sketch3_width")
sketch3.setExpression("Constraints[9]", "Params.sketch3_height")
pocket1 = body.newObject("PartDesign::Pocket", "Pocket")
pocket1.Profile = sketch3
pocket1.setExpression("Length", "Params.pocket1_length")

# Sketch on XY plane
sketch4 = body.newObject("Sketcher::SketchObject", "Sketch003")
sketch4.AttachmentSupport = (doc.getObject("XY_Plane"), [""])
sketch4.MapMode = "FlatFace"
sketch4.AttachmentOffset = App.Placement(V(0, 0, 4), App.Rotation())
sketch4.addGeometry(Part.Circle(V(-117.5, 0, 0), V(0, 0, 1), 1.2), False)
sketch4.addGeometry(Part.Circle(V(-92.5, 0, 0), V(0, 0, 1), 1.2), False)
sketch4.addConstraint(Sketcher.Constraint("Equal", 0, 1))
sketch4.addConstraint(Sketcher.Constraint("PointOnObject", 0, 3, -1))
sketch4.addConstraint(Sketcher.Constraint("PointOnObject", 1, 3, -1))
sketch4.addConstraint(Sketcher.Constraint("Diameter", 0, Q("2.459 mm")))
sketch4.addConstraint(Sketcher.Constraint("DistanceX", 1, 3, -1, 1, Q("92.5 mm")))
sketch4.addConstraint(Sketcher.Constraint("DistanceX", 0, 3, -1, 1, Q("117.494 mm")))
doc.recompute()
hole2 = body.newObject("PartDesign::Hole", "Hole001")
hole2.Profile = sketch4
hole2.ThreadType = "None"
hole2.setExpression("Diameter", "Params.hole2_diameter")
hole2.DepthType = "ThroughAll"

doc.recompute()
